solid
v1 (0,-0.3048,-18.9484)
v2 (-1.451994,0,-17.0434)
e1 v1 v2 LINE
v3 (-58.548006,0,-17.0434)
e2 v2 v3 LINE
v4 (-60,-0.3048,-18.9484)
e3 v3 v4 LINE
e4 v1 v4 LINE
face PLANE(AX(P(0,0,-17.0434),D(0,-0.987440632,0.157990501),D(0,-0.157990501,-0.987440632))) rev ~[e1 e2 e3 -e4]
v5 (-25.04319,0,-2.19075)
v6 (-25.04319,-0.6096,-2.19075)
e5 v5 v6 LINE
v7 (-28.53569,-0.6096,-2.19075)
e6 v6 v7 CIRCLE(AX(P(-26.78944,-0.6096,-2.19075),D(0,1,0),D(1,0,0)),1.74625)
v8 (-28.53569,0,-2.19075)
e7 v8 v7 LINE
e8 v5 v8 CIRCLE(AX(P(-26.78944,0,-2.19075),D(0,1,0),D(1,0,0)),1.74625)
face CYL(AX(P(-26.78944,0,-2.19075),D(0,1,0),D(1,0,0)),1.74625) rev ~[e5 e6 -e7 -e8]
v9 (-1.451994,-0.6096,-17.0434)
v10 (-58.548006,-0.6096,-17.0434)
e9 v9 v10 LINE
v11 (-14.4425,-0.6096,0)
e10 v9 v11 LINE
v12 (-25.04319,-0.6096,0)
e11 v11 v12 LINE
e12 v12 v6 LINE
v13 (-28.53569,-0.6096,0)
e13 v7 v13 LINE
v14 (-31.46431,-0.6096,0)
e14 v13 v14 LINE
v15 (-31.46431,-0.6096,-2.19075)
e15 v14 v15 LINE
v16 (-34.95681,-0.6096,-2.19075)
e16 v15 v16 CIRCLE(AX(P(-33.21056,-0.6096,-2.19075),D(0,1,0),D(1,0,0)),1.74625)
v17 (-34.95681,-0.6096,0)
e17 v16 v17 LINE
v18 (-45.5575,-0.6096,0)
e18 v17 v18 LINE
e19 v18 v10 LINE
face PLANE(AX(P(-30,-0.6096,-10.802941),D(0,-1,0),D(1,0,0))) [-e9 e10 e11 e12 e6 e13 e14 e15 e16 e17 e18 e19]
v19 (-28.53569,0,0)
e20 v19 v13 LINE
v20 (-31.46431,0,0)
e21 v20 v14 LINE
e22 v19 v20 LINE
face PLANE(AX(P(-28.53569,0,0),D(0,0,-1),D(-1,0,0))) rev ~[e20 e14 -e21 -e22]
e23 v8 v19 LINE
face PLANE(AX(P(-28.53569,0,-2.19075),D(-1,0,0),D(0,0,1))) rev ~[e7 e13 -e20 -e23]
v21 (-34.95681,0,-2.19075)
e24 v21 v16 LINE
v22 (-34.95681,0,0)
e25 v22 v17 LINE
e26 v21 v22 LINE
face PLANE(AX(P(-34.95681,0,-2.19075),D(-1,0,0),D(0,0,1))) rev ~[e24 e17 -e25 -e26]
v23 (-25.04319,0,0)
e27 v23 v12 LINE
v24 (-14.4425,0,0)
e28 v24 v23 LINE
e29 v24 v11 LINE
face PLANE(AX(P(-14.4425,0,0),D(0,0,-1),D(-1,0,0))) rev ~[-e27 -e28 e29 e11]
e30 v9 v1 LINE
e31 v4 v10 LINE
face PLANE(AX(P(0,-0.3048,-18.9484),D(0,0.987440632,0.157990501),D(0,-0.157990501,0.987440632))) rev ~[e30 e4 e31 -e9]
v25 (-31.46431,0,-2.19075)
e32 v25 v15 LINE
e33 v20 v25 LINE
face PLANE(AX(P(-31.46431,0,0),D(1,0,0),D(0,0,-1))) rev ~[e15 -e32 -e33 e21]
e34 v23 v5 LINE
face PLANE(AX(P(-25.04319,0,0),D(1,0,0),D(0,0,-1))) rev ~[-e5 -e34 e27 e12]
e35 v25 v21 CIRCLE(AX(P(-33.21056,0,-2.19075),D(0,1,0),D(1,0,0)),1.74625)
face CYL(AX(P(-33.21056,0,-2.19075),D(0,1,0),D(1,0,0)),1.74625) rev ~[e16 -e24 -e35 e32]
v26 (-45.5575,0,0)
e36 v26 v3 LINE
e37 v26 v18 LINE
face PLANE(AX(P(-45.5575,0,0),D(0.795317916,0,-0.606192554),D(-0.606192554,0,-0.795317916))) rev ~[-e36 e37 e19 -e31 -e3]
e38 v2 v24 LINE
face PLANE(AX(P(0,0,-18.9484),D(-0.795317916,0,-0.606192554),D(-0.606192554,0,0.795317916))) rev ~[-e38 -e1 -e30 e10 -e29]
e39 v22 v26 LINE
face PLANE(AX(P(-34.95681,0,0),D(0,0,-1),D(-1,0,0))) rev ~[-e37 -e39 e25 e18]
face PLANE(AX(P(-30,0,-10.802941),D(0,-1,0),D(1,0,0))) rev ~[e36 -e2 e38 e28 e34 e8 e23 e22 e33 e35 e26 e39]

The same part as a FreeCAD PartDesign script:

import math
import FreeCAD as App
import Part
import Sketcher
from FreeCAD import Vector
Q = App.Units.Quantity


def add_polygon(sketch, points):
    """Adds a closed chain of lines whose ends are joined by coincident constraints."""
    first, n = sketch.GeometryCount, len(points)
    for a, b in zip(points, points[1:] + points[:1]):
        sketch.addGeometry(Part.LineSegment(App.Vector(*a, 0), App.Vector(*b, 0)), False)
    for i in range(n):
        sketch.addConstraint(Sketcher.Constraint("Coincident", first + i, 2, first + (i + 1) % n, 1))

doc = App.newDocument("Part")
params = doc.addObject("Spreadsheet::Sheet", "Params")
for row, (alias, value) in enumerate([
    ("pad1_length", "0.024 in"),
    ("sketch2_width", "0.012 in"),
    ("sketch2_height", "0.075 in"),
], start=1):
    params.set(f"A{row}", alias)
    params.set(f"B{row}", "=" + value)
    params.setAlias(f"B{row}", alias)

body = doc.addObject("PartDesign::Body", "Body")

sketch1 = body.newObject("Sketcher::SketchObject", "Sketch")
sketch1.AttachmentSupport = (doc.getObject("XZ_Plane"), [""])
sketch1.MapMode = "FlatFace"
sketch1.addGeometry([
    Part.LineSegment(Vector(-60, -18.9, 0), Vector(0, -18.9, 0)),
    Part.LineSegment(Vector(0, -18.9, 0), Vector(-14.4, 0, 0)),
    Part.LineSegment(Vector(-14.4, 0, 0), Vector(-25, 0, 0)),
    Part.LineSegment(Vector(-25, 0, 0), Vector(-25, -2.2, 0)),
    Part.ArcOfCircle(Part.Circle(Vector(-26.8, -2.2, 0), Vector(0, 0, 1), 1.7), math.radians(180), math.radians(360)),
    Part.LineSegment(Vector(-28.5, -2.2, 0), Vector(-28.5, 0, 0)),
    Part.LineSegment(Vector(-28.5, 0, 0), Vector(-31.5, 0, 0)),
    Part.LineSegment(Vector(-31.5, 0, 0), Vector(-31.5, -2.2, 0)),
    Part.ArcOfCircle(Part.Circle(Vector(-33.2, -2.2, 0), Vector(0, 0, 1), 1.7), math.radians(180), math.radians(360)),
    Part.LineSegment(Vector(-35, -2.2, 0), Vector(-35, 0, 0)),
    Part.LineSegment(Vector(-35, 0, 0), Vector(-45.6, 0, 0)),
    Part.LineSegment(Vector(-45.6, 0, 0), Vector(-60, -18.9, 0)),
], False)
sketch1.addConstraint([
    Sketcher.Constraint("Coincident", 0, 2, 1, 1),
    Sketcher.Constraint("Coincident", 1, 2, 2, 1),
    Sketcher.Constraint("Coincident", 2, 2, 3, 1),
    Sketcher.Constraint("Tangent", 3, 2, 4, 2),
    Sketcher.Constraint("Tangent", 4, 1, 5, 1),
    Sketcher.Constraint("Coincident", 5, 2, 6, 1),
    Sketcher.Constraint("Coincident", 6, 2, 7, 1),
    Sketcher.Constraint("Tangent", 7, 2, 8, 2),
    Sketcher.Constraint("Tangent", 8, 1, 9, 1),
    Sketcher.Constraint("Coincident", 9, 2, 10, 1),
    Sketcher.Constraint("Coincident", 10, 2, 11, 1),
    Sketcher.Constraint("Coincident", 11, 2, 0, 1),
    Sketcher.Constraint("Horizontal", 0),
    Sketcher.Constraint("Horizontal", 2),
    Sketcher.Constraint("Vertical", 3),
    Sketcher.Constraint("Vertical", 5),
    Sketcher.Constraint("Horizontal", 6),
    Sketcher.Constraint("Vertical", 7),
    Sketcher.Constraint("Vertical", 9),
    Sketcher.Constraint("Horizontal", 10),
    Sketcher.Constraint("Equal", 4, 8),
    Sketcher.Constraint("PointOnObject", 0, 2, -2),
    Sketcher.Constraint("PointOnObject", 1, 2, -1),
    Sketcher.Constraint("PointOnObject", 5, 2, -1),
    Sketcher.Constraint("PointOnObject", 9, 2, -1),
    Sketcher.Constraint("Horizontal", 4, 3, 8, 3),
    Sketcher.Constraint("Equal", 2, 10),
    Sketcher.Constraint("Equal", 1, 11),
    Sketcher.Constraint("DistanceX", 6, 2, 6, 1, Q("0.1153 in")),
    Sketcher.Constraint("DistanceY", 0, 2, -1, 1, Q("0.746 in")),
    Sketcher.Constraint("Radius", 4, 1.74625),
    Sketcher.Constraint("DistanceX", 0, 1, 0, 2, 60.0),
    Sketcher.Constraint("DistanceX", 4, 3, 1, 2, Q("0.4861 in")),
    Sketcher.Constraint("DistanceY", 3, 2, 3, 1, 2.19075),
])
pad1 = body.newObject("PartDesign::Pad", "Pad")
pad1.Profile = sketch1
pad1.setExpression("Length", "Params.pad1_length")

sketch2 = body.newObject("Sketcher::SketchObject", "Sketch001")
sketch2.AttachmentSupport = (doc.getObject("YZ_Plane"), [""])
sketch2.MapMode = "FlatFace"
add_polygon(sketch2, [(0, -17.04), (-0.3, -18.95), (0, -18.95)])
add_polygon(sketch2, [(-0.3, -18.95), (-0.61, -17.04), (-0.61, -18.95)])
sketch2.addConstraint([
    Sketcher.Constraint("Horizontal", 1),
    Sketcher.Constraint("Vertical", 2),
    Sketcher.Constraint("Vertical", 4),
    Sketcher.Constraint("Horizontal", 5),
    Sketcher.Constraint("Coincident", 5, 2, 0, 2),
    Sketcher.Constraint("PointOnObject", 1, 2, -2),
    Sketcher.Constraint("Horizontal", 2, 2, 3, 2),
    Sketcher.Constraint("Equal", 1, 5),
    Sketcher.Constraint("DistanceX", 1, 1, 1, 2, Q("0.012 in")),
    Sketcher.Constraint("DistanceY", 2, 1, 2, 2, Q("0.075 in")),
    Sketcher.Constraint("DistanceY", 0, 2, -1, 1, Q("0.746 in")),
])
sketch2.setExpression("Constraints[14]", "Params.sketch2_width")
sketch2.setExpression("Constraints[15]", "Params.sketch2_height")
pocket1 = body.newObject("PartDesign::Pocket", "Pocket")
pocket1.Profile = sketch2
pocket1.Type = "ThroughAll"

doc.recompute()
